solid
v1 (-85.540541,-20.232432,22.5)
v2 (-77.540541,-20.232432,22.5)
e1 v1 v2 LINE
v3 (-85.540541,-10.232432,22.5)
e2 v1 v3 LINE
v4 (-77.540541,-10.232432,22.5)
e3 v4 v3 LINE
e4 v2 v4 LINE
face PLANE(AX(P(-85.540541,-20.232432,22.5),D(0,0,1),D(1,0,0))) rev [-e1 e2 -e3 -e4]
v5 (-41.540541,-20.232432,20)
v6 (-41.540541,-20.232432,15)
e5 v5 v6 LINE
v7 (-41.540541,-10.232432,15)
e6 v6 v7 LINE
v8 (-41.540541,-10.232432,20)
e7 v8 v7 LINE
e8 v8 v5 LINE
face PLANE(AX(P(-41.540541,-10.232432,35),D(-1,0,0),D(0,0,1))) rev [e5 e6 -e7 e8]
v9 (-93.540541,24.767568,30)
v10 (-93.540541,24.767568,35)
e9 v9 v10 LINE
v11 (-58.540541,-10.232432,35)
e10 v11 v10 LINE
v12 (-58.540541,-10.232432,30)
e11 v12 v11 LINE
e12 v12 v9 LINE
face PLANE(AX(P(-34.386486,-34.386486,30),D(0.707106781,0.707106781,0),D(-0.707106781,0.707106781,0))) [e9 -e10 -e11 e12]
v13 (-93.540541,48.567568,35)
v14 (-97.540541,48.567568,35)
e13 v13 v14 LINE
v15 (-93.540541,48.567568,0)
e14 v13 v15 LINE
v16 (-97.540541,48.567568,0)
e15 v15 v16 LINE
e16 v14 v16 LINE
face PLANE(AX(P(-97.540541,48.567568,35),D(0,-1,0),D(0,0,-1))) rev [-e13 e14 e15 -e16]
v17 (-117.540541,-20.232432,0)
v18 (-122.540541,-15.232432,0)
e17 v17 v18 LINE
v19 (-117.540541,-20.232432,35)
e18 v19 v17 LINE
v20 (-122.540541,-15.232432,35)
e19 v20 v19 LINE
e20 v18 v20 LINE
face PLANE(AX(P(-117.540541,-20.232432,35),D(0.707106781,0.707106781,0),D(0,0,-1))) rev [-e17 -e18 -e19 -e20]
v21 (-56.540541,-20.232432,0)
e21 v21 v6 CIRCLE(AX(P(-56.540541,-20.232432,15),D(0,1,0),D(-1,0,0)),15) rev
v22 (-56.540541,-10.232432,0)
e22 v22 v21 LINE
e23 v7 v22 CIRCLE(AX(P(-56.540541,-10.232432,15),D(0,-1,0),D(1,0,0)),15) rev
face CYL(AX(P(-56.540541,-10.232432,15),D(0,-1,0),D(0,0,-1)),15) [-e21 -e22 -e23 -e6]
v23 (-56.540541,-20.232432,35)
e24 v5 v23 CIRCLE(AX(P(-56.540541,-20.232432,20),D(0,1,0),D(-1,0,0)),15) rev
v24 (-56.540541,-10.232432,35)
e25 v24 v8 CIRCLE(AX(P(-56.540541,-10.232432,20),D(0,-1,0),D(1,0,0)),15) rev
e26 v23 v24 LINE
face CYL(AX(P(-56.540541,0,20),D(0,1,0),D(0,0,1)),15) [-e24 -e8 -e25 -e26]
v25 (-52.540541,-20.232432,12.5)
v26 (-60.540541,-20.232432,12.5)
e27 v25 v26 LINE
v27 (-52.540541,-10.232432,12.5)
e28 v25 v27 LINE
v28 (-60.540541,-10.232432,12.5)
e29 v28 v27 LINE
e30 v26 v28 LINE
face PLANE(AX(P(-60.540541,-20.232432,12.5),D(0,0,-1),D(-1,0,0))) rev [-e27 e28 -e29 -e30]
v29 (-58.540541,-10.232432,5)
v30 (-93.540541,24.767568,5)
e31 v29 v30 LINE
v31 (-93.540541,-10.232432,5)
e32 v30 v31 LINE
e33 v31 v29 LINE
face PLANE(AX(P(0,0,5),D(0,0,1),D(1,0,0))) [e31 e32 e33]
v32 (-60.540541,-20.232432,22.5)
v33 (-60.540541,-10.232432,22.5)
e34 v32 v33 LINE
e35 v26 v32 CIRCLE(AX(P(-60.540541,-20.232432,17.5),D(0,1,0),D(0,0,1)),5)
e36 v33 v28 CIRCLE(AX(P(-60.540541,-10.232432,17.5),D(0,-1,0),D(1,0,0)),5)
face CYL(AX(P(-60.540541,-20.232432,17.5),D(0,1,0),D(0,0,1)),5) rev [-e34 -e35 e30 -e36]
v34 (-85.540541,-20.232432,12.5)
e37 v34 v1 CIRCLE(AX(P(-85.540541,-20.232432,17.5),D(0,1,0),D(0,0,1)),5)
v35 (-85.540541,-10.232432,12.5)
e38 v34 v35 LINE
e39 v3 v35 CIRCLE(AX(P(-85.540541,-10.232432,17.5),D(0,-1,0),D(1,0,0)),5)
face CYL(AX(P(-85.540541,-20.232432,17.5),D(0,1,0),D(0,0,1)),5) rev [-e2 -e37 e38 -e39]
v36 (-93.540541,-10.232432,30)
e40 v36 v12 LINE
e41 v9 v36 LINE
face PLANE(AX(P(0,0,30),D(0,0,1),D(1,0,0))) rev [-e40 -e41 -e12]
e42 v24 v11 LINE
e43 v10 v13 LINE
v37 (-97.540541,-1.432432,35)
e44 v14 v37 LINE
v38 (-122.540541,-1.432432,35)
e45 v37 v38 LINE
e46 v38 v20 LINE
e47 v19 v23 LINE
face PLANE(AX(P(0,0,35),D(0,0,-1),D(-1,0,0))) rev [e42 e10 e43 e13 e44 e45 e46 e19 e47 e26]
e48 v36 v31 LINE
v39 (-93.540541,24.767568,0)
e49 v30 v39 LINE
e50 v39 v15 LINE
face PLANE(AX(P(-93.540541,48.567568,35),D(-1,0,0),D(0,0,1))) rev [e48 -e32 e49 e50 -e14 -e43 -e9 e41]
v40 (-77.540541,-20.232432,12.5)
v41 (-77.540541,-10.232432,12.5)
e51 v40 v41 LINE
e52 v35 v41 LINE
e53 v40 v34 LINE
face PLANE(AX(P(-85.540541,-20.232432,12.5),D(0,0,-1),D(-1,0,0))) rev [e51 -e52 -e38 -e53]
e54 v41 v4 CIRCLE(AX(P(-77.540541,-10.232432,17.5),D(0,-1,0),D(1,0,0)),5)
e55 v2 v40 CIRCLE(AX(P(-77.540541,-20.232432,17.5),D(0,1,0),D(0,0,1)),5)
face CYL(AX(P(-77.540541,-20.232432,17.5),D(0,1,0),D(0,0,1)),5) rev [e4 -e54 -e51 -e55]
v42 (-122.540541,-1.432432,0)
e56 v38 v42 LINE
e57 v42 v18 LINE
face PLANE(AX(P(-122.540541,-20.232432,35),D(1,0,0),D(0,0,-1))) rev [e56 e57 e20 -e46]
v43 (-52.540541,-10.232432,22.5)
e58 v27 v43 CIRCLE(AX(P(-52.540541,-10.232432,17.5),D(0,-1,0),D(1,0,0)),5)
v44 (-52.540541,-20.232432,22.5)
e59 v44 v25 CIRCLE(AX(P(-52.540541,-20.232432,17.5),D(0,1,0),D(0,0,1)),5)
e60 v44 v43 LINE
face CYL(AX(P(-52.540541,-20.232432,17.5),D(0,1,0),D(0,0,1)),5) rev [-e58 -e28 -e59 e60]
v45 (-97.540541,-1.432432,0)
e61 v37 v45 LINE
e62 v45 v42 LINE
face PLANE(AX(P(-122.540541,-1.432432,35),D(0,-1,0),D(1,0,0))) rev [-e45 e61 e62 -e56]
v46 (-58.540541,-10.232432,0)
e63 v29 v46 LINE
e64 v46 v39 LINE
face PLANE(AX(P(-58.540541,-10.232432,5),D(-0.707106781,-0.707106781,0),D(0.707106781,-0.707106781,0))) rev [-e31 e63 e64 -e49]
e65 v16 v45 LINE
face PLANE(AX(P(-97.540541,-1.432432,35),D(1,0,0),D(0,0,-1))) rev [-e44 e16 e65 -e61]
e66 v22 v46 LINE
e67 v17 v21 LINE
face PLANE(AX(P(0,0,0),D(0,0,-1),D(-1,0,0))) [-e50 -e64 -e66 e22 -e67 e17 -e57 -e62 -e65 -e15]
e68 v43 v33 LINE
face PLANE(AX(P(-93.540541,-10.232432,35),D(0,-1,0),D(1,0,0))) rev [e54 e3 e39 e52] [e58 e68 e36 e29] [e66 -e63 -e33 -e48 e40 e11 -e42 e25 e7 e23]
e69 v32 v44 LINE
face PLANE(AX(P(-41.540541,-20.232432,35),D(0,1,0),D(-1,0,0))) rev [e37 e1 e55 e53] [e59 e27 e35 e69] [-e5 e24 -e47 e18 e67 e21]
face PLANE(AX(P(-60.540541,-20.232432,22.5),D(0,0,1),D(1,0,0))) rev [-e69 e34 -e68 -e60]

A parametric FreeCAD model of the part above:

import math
import FreeCAD as App
import Part
import Sketcher
Q = App.Units.Quantity


def edges_at(feature, points):
    """Names of the edges that pass closest to the given points."""
    edges = feature.Shape.Edges
    near = lambda p: min(range(len(edges)), key=lambda i: edges[i].distToShape(Part.Vertex(*p))[0])
    return sorted({f"Edge{near(p) + 1}" for p in points})

doc = App.newDocument("Part")
body = doc.addObject("PartDesign::Body", "Body")

sketch1 = body.newObject("Sketcher::SketchObject", "Sketch")
sketch1.AttachmentSupport = (doc.getObject("XY_Plane"), [""])
sketch1.MapMode = "FlatFace"
sketch1.addGeometry(Part.LineSegment(App.Vector(-122.540541, -20.232432, 0), App.Vector(-41.540541, -20.232432, 0)), False)
sketch1.addGeometry(Part.LineSegment(App.Vector(-41.540541, -20.232432, 0), App.Vector(-41.540541, -10.232432, 0)), False)
sketch1.addGeometry(Part.LineSegment(App.Vector(-41.540541, -10.232432, 0), App.Vector(-93.540541, -10.232432, 0)), False)
sketch1.addGeometry(Part.LineSegment(App.Vector(-93.540541, -10.232432, 0), App.Vector(-93.540541, 48.567568, 0)), False)
sketch1.addGeometry(Part.LineSegment(App.Vector(-93.540541, 48.567568, 0), App.Vector(-97.540541, 48.567568, 0)), False)
sketch1.addGeometry(Part.LineSegment(App.Vector(-97.540541, 48.567568, 0), App.Vector(-97.540541, -1.432432, 0)), False)
sketch1.addGeometry(Part.LineSegment(App.Vector(-97.540541, -1.432432, 0), App.Vector(-122.540541, -1.432432, 0)), False)
sketch1.addGeometry(Part.LineSegment(App.Vector(-122.540541, -1.432432, 0), App.Vector(-122.540541, -20.232432, 0)), False)
sketch1.addConstraint(Sketcher.Constraint("Coincident", 0, 2, 1, 1))
sketch1.addConstraint(Sketcher.Constraint("Coincident", 1, 2, 2, 1))
sketch1.addConstraint(Sketcher.Constraint("Coincident", 2, 2, 3, 1))
sketch1.addConstraint(Sketcher.Constraint("Coincident", 3, 2, 4, 1))
sketch1.addConstraint(Sketcher.Constraint("Coincident", 4, 2, 5, 1))
sketch1.addConstraint(Sketcher.Constraint("Coincident", 5, 2, 6, 1))
sketch1.addConstraint(Sketcher.Constraint("Coincident", 6, 2, 7, 1))
sketch1.addConstraint(Sketcher.Constraint("Coincident", 7, 2, 0, 1))
sketch1.addConstraint(Sketcher.Constraint("Horizontal", 0))
sketch1.addConstraint(Sketcher.Constraint("Vertical", 1))
sketch1.addConstraint(Sketcher.Constraint("Horizontal", 2))
sketch1.addConstraint(Sketcher.Constraint("Vertical", 3))
sketch1.addConstraint(Sketcher.Constraint("Horizontal", 4))
sketch1.addConstraint(Sketcher.Constraint("Vertical", 5))
sketch1.addConstraint(Sketcher.Constraint("Horizontal", 6))
sketch1.addConstraint(Sketcher.Constraint("Vertical", 7))
sketch1.addConstraint(Sketcher.Constraint("DistanceX", 0, 1, 0, 2, Q("81 mm")))
sketch1.addConstraint(Sketcher.Constraint("DistanceX", 2, 2, 2, 1, Q("52 mm")))
sketch1.addConstraint(Sketcher.Constraint("DistanceX", 4, 2, 4, 1, Q("4 mm")))
sketch1.addConstraint(Sketcher.Constraint("DistanceY", 1, 1, 1, 2, Q("10 mm")))
sketch1.addConstraint(Sketcher.Constraint("DistanceY", 5, 2, 5, 1, Q("50 mm")))
sketch1.addConstraint(Sketcher.Constraint("DistanceY", 3, 1, 3, 2, Q("58.8 mm")))
sketch1.addConstraint(Sketcher.Constraint("DistanceX", 0, 2, -1, 1, Q("41.540541 mm")))
sketch1.addConstraint(Sketcher.Constraint("DistanceY", 0, 2, -1, 1, Q("20.232432 mm")))
pad1 = body.newObject("PartDesign::Pad", "Pad")
pad1.Profile = sketch1
pad1.Length = 35

sketch2 = body.newObject("Sketcher::SketchObject", "Sketch001")
sketch2.AttachmentSupport = (doc.getObject("XY_Plane"), [""])
sketch2.MapMode = "FlatFace"
sketch2.addGeometry(Part.LineSegment(App.Vector(-93.540541, 24.767568, 0), App.Vector(-93.540541, -10.232432, 0)), False)
sketch2.addGeometry(Part.LineSegment(App.Vector(-93.540541, -10.232432, 0), App.Vector(-58.540541, -10.232432, 0)), False)
sketch2.addGeometry(Part.LineSegment(App.Vector(-58.540541, -10.232432, 0), App.Vector(-93.540541, 24.767568, 0)), False)
sketch2.addConstraint(Sketcher.Constraint("Coincident", 0, 2, 1, 1))
sketch2.addConstraint(Sketcher.Constraint("Coincident", 1, 2, 2, 1))
sketch2.addConstraint(Sketcher.Constraint("Coincident", 2, 2, 0, 1))
sketch2.addConstraint(Sketcher.Constraint("Vertical", 0))
sketch2.addConstraint(Sketcher.Constraint("Horizontal", 1))
sketch2.addConstraint(Sketcher.Constraint("Equal", 1, 0))
sketch2.addConstraint(Sketcher.Constraint("DistanceX", 1, 1, 1, 2, Q("35 mm")))
sketch2.addConstraint(Sketcher.Constraint("DistanceX", 0, 2, -1, 1, Q("93.540541 mm")))
sketch2.addConstraint(Sketcher.Constraint("DistanceY", 0, 2, -1, 1, Q("10.232432 mm")))
pad2 = body.newObject("PartDesign::Pad", "Pad001")
pad2.Profile = sketch2
pad2.Length = 5

sketch3 = body.newObject("Sketcher::SketchObject", "Sketch002")
sketch3.AttachmentSupport = (doc.getObject("XY_Plane"), [""])
sketch3.MapMode = "FlatFace"
sketch3.AttachmentOffset = App.Placement(App.Vector(0, 0, 35), App.Rotation())
sketch3.addGeometry(Part.LineSegment(App.Vector(-93.540541, 24.767568, 0), App.Vector(-93.540541, -10.232432, 0)), False)
sketch3.addGeometry(Part.LineSegment(App.Vector(-93.540541, -10.232432, 0), App.Vector(-58.540541, -10.232432, 0)), False)
sketch3.addGeometry(Part.LineSegment(App.Vector(-58.540541, -10.232432, 0), App.Vector(-93.540541, 24.767568, 0)), False)
sketch3.addConstraint(Sketcher.Constraint("Coincident", 0, 2, 1, 1))
sketch3.addConstraint(Sketcher.Constraint("Coincident", 1, 2, 2, 1))
sketch3.addConstraint(Sketcher.Constraint("Coincident", 2, 2, 0, 1))
sketch3.addConstraint(Sketcher.Constraint("Vertical", 0))
sketch3.addConstraint(Sketcher.Constraint("Horizontal", 1))
sketch3.addConstraint(Sketcher.Constraint("Equal", 1, 0))
sketch3.addConstraint(Sketcher.Constraint("DistanceX", 1, 1, 1, 2, Q("35 mm")))
sketch3.addConstraint(Sketcher.Constraint("DistanceX", 0, 2, -1, 1, Q("93.540541 mm")))
sketch3.addConstraint(Sketcher.Constraint("DistanceY", 0, 2, -1, 1, Q("10.232432 mm")))
pad3 = body.newObject("PartDesign::Pad", "Pad002")
pad3.Profile = sketch3
pad3.Length = 5
pad3.Reversed = True

sketch4 = body.newObject("Sketcher::SketchObject", "Sketch003")
sketch4.AttachmentSupport = (doc.getObject("XZ_Plane"), [""])
sketch4.MapMode = "FlatFace"
sketch4.addGeometry(Part.LineSegment(App.Vector(-77.540541, 12.5, 0), App.Vector(-85.540541, 12.5, 0)), False)
sketch4.addGeometry(Part.ArcOfCircle(Part.Circle(App.Vector(-85.540541, 17.5, 0), App.Vector(0, 0, 1), 5), math.radians(90), math.radians(270)), False)
sketch4.addGeometry(Part.LineSegment(App.Vector(-85.540541, 22.5, 0), App.Vector(-77.540541, 22.5, 0)), False)
sketch4.addGeometry(Part.ArcOfCircle(Part.Circle(App.Vector(-77.540541, 17.5, 0), App.Vector(0, 0, 1), 5), math.radians(-90), math.radians(90)), False)
sketch4.addGeometry(Part.LineSegment(App.Vector(-52.540541, 12.5, 0), App.Vector(-60.540541, 12.5, 0)), False)
sketch4.addGeometry(Part.ArcOfCircle(Part.Circle(App.Vector(-60.540541, 17.5, 0), App.Vector(0, 0, 1), 5), math.radians(90), math.radians(270)), False)
sketch4.addGeometry(Part.LineSegment(App.Vector(-60.540541, 22.5, 0), App.Vector(-52.540541, 22.5, 0)), False)
sketch4.addGeometry(Part.ArcOfCircle(Part.Circle(App.Vector(-52.540541, 17.5, 0), App.Vector(0, 0, 1), 5), math.radians(-90), math.radians(90)), False)
sketch4.addConstraint(Sketcher.Constraint("Tangent", 0, 2, 1, 2))
sketch4.addConstraint(Sketcher.Constraint("Tangent", 1, 1, 2, 1))
sketch4.addConstraint(Sketcher.Constraint("Tangent", 2, 2, 3, 2))
sketch4.addConstraint(Sketcher.Constraint("Tangent", 3, 1, 0, 1))
sketch4.addConstraint(Sketcher.Constraint("Tangent", 4, 2, 5, 2))
sketch4.addConstraint(Sketcher.Constraint("Tangent", 5, 1, 6, 1))
sketch4.addConstraint(Sketcher.Constraint("Tangent", 6, 2, 7, 2))
sketch4.addConstraint(Sketcher.Constraint("Tangent", 7, 1, 4, 1))
sketch4.addConstraint(Sketcher.Constraint("Horizontal", 0))
sketch4.addConstraint(Sketcher.Constraint("Horizontal", 2))
sketch4.addConstraint(Sketcher.Constraint("Horizontal", 4))
sketch4.addConstraint(Sketcher.Constraint("Horizontal", 6))
sketch4.addConstraint(Sketcher.Constraint("Equal", 3, 5))
sketch4.addConstraint(Sketcher.Constraint("Horizontal", 3, 3, 5, 3))
sketch4.addConstraint(Sketcher.Constraint("Equal", 2, 4))
sketch4.addConstraint(Sketcher.Constraint("Radius", 1, Q("5 mm")))
sketch4.addConstraint(Sketcher.Constraint("DistanceX", 0, 2, 0, 1, Q("8 mm")))
sketch4.addConstraint(Sketcher.Constraint("DistanceX", 3, 3, 5, 3, Q("17 mm")))
sketch4.addConstraint(Sketcher.Constraint("DistanceY", -1, 1, 1, 3, Q("17.5 mm")))
sketch4.addConstraint(Sketcher.Constraint("DistanceX", 1, 3, -1, 1, Q("85.540541 mm")))
pocket1 = body.newObject("PartDesign::Pocket", "Pocket")
pocket1.Profile = sketch4
pocket1.Type = "ThroughAll"
pocket1.Reversed = True
doc.recompute()

chamfer = body.newObject("PartDesign::Chamfer", "Chamfer")
chamfer.Base = (pocket1, edges_at(pocket1, [(-122.541, -20.232, 17.5)]))
chamfer.Size = 5
doc.recompute()

fillet = body.newObject("PartDesign::Fillet", "Fillet")
fillet.Base = (chamfer, edges_at(chamfer, [(-41.541, -15.232, 0), (-41.541, -15.232, 35)]))
fillet.Radius = 15

doc.recompute()
